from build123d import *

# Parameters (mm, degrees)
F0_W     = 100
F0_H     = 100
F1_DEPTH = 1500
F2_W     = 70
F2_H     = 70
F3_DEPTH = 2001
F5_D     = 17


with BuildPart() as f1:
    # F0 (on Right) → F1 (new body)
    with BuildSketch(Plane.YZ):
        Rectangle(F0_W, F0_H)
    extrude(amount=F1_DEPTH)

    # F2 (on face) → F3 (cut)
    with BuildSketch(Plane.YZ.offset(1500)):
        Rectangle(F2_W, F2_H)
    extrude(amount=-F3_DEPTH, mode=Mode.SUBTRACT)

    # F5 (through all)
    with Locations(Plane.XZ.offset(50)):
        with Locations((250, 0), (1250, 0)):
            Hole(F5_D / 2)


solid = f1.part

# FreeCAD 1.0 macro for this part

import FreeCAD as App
import Part
import Sketcher

doc = App.newDocument("Part")
body = doc.addObject("PartDesign::Body", "Body")

# Sketch on YZ plane
sketch1 = doc.addObject("Sketcher::SketchObject", "Sketch")
body.addObject(sketch1)
sketch1.AttachmentSupport = (doc.YZ_Plane, [""])
sketch1.MapMode = "FlatFace"
sketch1.addGeometry(Part.LineSegment(App.Vector(-50, 50, 0), App.Vector(-50, -50, 0)), False)
sketch1.addGeometry(Part.LineSegment(App.Vector(-50, -50, 0), App.Vector(50, -50, 0)), False)
sketch1.addGeometry(Part.LineSegment(App.Vector(50, -50, 0), App.Vector(50, 50, 0)), False)
sketch1.addGeometry(Part.LineSegment(App.Vector(50, 50, 0), App.Vector(-50, 50, 0)), False)
sketch1.addConstraint(Sketcher.Constraint("Coincident", 0, 2, 1, 1))
sketch1.addConstraint(Sketcher.Constraint("Coincident", 1, 2, 2, 1))
sketch1.addConstraint(Sketcher.Constraint("Coincident", 2, 2, 3, 1))
sketch1.addConstraint(Sketcher.Constraint("Coincident", 3, 2, 0, 1))
sketch1.addConstraint(Sketcher.Constraint("Vertical", 0))
sketch1.addConstraint(Sketcher.Constraint("Horizontal", 1))
sketch1.addConstraint(Sketcher.Constraint("Vertical", 2))
sketch1.addConstraint(Sketcher.Constraint("Horizontal", 3))
sketch1.addConstraint(Sketcher.Constraint("Symmetric", 0, 2, 2, 2, -1, 1))
sketch1.addConstraint(Sketcher.Constraint("Equal", 3, 0))
sketch1.addConstraint(Sketcher.Constraint("DistanceX", 1, 1, 1, 2, 100.0))
pad1 = doc.addObject("PartDesign::Pad", "Pad")
body.addObject(pad1)
pad1.Profile = sketch1
pad1.Length = 1500

# Sketch on YZ plane
sketch2 = doc.addObject("Sketcher::SketchObject", "Sketch001")
body.addObject(sketch2)
sketch2.AttachmentSupport = (doc.YZ_Plane, [""])
sketch2.MapMode = "FlatFace"
sketch2.AttachmentOffset = App.Placement(App.Vector(0, 0, 1500), App.Rotation())
sketch2.addGeometry(Part.LineSegment(App.Vector(-35, 35, 0), App.Vector(-35, -35, 0)), False)
sketch2.addGeometry(Part.LineSegment(App.Vector(-35, -35, 0), App.Vector(35, -35, 0)), False)
sketch2.addGeometry(Part.LineSegment(App.Vector(35, -35, 0), App.Vector(35, 35, 0)), False)
sketch2.addGeometry(Part.LineSegment(App.Vector(35, 35, 0), App.Vector(-35, 35, 0)), False)
sketch2.addConstraint(Sketcher.Constraint("Coincident", 0, 2, 1, 1))
sketch2.addConstraint(Sketcher.Constraint("Coincident", 1, 2, 2, 1))
sketch2.addConstraint(Sketcher.Constraint("Coincident", 2, 2, 3, 1))
sketch2.addConstraint(Sketcher.Constraint("Coincident", 3, 2, 0, 1))
sketch2.addConstraint(Sketcher.Constraint("Vertical", 0))
sketch2.addConstraint(Sketcher.Constraint("Horizontal", 1))
sketch2.addConstraint(Sketcher.Constraint("Vertical", 2))
sketch2.addConstraint(Sketcher.Constraint("Horizontal", 3))
sketch2.addConstraint(Sketcher.Constraint("Symmetric", 0, 2, 2, 2, -1, 1))
sketch2.addConstraint(Sketcher.Constraint("Equal", 3, 0))
sketch2.addConstraint(Sketcher.Constraint("DistanceX", 1, 1, 1, 2, 70.0))
pocket1 = doc.addObject("PartDesign::Pocket", "Pocket")
body.addObject(pocket1)
pocket1.Profile = sketch2
pocket1.Length = 2001

# Sketch on XZ plane
sketch3 = doc.addObject("Sketcher::SketchObject", "Sketch002")
body.addObject(sketch3)
sketch3.AttachmentSupport = (doc.XZ_Plane, [""])
sketch3.MapMode = "FlatFace"
sketch3.AttachmentOffset = App.Placement(App.Vector(0, 0, 50), App.Rotation())
sketch3.addGeometry(Part.Circle(App.Vector(250, 0, 0), App.Vector(0, 0, 1), 8), False)
sketch3.addGeometry(Part.Circle(App.Vector(1250, 0, 0), App.Vector(0, 0, 1), 8), False)
sketch3.addConstraint(Sketcher.Constraint("Equal", 0, 1))
sketch3.addConstraint(Sketcher.Constraint("PointOnObject", 0, 3, -1))
sketch3.addConstraint(Sketcher.Constraint("PointOnObject", 1, 3, -1))
sketch3.addConstraint(Sketcher.Constraint("Diameter", 0, 17.0))
sketch3.addConstraint(Sketcher.Constraint("DistanceX", -1, 1, 0, 3, 250.0))
sketch3.addConstraint(Sketcher.Constraint("DistanceX", -1, 1, 1, 3, 1250.0))
doc.recompute()
hole = doc.addObject("PartDesign::Hole", "Hole")
body.addObject(hole)
hole.Profile = sketch3
hole.ThreadType = "None"
hole.Diameter = 17
hole.DepthType = "ThroughAll"

doc.recompute()
